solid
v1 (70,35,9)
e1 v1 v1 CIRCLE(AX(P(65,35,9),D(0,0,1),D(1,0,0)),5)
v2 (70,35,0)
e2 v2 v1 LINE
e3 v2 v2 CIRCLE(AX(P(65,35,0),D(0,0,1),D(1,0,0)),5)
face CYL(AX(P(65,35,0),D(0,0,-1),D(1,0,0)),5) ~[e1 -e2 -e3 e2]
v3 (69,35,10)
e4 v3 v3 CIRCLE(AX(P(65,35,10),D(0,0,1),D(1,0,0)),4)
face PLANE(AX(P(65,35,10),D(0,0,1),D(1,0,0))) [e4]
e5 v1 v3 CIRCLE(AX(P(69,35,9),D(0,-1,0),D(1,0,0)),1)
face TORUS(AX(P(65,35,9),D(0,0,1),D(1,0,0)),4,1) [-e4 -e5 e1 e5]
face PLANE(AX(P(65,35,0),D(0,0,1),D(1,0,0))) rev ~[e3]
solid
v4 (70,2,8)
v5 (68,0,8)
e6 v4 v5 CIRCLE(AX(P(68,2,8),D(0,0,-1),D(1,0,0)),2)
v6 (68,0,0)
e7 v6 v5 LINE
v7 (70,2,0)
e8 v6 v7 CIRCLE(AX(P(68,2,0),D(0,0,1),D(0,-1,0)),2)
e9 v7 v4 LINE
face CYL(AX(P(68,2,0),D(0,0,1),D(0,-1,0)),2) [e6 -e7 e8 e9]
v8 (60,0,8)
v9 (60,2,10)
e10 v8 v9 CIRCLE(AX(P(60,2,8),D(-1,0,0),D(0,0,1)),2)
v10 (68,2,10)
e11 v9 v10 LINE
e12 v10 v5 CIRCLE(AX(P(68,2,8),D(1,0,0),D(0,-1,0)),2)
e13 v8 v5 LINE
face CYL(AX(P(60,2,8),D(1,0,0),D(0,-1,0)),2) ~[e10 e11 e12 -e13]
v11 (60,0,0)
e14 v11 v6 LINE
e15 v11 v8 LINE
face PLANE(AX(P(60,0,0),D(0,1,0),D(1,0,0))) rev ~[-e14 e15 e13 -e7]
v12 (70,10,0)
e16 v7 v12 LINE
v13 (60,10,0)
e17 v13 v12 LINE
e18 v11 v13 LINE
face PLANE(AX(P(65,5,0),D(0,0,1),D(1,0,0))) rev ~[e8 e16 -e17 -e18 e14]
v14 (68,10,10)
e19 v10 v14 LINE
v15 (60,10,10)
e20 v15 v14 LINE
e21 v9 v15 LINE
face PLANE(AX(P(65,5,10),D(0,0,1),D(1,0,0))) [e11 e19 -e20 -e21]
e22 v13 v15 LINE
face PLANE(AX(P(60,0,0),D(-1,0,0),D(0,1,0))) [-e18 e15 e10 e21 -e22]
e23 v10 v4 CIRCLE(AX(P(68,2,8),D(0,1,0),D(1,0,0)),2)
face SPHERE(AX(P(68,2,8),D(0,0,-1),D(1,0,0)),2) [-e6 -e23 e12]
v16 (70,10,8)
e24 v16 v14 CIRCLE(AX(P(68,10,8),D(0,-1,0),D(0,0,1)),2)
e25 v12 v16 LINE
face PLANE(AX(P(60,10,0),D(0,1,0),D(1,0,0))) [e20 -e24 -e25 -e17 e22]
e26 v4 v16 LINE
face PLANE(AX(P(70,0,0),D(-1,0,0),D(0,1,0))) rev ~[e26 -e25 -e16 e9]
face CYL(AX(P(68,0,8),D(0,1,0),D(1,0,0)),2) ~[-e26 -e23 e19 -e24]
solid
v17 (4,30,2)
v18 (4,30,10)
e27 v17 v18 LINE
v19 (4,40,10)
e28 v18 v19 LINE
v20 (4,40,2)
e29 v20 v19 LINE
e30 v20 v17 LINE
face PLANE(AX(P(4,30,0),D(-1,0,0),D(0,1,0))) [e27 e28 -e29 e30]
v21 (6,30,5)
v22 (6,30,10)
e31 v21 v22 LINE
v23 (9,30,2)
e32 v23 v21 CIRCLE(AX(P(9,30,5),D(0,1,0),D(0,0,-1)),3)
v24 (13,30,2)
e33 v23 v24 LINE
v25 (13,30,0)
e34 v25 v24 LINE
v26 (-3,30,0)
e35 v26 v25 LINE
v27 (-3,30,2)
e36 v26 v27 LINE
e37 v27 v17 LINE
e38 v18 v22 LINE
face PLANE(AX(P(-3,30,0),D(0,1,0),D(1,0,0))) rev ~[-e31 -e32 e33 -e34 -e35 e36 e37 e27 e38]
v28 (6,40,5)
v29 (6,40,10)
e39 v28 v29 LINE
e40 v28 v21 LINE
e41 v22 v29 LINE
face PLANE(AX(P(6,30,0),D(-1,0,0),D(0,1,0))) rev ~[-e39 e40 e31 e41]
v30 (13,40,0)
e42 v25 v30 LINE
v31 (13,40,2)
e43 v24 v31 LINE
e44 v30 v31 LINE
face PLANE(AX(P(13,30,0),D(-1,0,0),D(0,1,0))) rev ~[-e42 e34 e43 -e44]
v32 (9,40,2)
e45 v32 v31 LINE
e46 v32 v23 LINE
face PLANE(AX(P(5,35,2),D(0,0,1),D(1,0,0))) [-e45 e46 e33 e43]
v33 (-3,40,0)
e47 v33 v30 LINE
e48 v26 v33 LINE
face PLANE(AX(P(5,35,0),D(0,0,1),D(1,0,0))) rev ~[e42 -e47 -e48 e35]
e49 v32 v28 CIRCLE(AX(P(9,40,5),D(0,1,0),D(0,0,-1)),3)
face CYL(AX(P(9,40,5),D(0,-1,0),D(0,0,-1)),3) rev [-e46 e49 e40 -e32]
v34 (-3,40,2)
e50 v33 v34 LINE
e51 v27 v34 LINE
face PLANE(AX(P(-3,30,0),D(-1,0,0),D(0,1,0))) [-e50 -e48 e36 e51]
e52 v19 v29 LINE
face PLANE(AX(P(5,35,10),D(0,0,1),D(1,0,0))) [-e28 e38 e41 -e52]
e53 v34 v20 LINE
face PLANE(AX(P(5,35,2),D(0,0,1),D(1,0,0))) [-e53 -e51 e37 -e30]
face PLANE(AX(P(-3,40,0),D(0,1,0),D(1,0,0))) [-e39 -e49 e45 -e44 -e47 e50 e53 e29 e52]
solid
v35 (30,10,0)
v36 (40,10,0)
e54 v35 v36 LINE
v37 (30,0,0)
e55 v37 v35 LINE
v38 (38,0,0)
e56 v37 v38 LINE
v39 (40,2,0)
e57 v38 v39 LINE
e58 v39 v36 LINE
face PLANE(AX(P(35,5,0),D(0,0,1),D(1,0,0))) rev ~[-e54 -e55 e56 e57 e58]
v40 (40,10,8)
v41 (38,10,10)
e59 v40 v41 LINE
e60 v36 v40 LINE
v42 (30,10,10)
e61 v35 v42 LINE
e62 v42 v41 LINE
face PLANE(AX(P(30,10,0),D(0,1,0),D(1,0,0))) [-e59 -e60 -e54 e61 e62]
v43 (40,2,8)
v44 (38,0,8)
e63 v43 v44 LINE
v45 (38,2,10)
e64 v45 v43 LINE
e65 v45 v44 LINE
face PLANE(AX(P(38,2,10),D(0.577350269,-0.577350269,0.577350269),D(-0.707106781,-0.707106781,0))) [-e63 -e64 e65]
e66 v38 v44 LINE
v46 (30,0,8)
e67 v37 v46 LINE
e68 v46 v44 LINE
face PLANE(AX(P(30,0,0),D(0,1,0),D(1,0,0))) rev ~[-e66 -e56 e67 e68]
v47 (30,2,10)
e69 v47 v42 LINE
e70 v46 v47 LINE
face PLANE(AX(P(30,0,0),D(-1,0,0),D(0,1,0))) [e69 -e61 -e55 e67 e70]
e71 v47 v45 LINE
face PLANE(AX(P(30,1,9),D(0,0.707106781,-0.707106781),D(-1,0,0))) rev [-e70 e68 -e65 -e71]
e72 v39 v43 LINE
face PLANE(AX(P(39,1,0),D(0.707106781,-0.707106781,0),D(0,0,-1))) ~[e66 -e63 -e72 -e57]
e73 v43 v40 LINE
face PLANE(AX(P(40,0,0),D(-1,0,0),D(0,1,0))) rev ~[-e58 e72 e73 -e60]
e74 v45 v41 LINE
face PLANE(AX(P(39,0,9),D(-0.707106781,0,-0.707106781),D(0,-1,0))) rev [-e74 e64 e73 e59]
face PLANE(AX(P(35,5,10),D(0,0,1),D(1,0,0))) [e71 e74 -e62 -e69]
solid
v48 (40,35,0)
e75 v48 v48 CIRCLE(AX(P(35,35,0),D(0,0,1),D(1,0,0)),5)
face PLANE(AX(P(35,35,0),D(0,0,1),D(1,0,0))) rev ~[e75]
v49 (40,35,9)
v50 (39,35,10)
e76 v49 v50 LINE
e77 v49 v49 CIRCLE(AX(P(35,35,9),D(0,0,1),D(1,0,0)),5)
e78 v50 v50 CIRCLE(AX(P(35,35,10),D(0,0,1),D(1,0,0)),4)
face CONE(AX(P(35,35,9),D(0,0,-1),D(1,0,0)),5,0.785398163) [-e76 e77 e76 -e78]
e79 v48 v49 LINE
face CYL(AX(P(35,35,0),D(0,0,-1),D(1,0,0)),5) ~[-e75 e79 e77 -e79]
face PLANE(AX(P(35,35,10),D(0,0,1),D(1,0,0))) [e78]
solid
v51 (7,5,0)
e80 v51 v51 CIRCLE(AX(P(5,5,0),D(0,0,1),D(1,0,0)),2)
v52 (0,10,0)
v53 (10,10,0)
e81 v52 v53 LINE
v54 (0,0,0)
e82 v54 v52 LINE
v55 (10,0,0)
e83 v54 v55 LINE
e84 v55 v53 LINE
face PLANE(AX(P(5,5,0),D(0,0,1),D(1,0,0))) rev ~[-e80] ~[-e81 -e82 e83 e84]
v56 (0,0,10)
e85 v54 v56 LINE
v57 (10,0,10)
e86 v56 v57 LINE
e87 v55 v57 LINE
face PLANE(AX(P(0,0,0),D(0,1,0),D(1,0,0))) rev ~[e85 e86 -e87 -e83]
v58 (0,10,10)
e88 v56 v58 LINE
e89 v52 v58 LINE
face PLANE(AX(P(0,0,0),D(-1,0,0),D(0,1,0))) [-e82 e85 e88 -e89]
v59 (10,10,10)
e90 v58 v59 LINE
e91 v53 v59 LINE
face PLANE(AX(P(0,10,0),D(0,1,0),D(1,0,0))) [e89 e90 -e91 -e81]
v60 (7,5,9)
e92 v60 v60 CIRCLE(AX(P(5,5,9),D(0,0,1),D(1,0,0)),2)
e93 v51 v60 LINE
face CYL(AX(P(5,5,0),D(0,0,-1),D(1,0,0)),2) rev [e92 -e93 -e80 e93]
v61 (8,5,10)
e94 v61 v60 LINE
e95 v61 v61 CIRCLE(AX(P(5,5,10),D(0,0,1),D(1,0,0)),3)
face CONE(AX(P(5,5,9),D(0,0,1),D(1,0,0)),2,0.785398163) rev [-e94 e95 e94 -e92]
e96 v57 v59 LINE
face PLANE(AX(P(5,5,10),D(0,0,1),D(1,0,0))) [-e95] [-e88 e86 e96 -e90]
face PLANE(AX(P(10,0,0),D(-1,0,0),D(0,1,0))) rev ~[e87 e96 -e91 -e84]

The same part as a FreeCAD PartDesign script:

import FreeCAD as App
import Part
import Sketcher

V = App.Vector
Q = App.Units.Quantity


def edges_at(feature, points):
    """Names of the edges that pass closest to the given points."""
    edges = feature.Shape.Edges
    near = lambda p: min(range(len(edges)), key=lambda i: edges[i].distToShape(Part.Vertex(*p))[0])
    return sorted({f"Edge{near(p) + 1}" for p in points})


def add_polygon(sketch, points):
    """Adds a closed chain of lines whose ends are joined by coincident constraints."""
    first, n = sketch.GeometryCount, len(points)
    for a, b in zip(points, points[1:] + points[:1]):
        sketch.addGeometry(Part.LineSegment(App.Vector(*a, 0), App.Vector(*b, 0)), False)
    for i in range(n):
        sketch.addConstraint(Sketcher.Constraint("Coincident", first + i, 2, first + (i + 1) % n, 1))

doc = App.newDocument("Part")
body = doc.addObject("PartDesign::Body", "Body")

# Sketch on XY plane
sketch1 = body.newObject("Sketcher::SketchObject", "Sketch")
sketch1.AttachmentSupport = (doc.getObject("XY_Plane"), [""])
sketch1.MapMode = "FlatFace"
add_polygon(sketch1, [(60, 10), (60, 0), (70, 0), (70, 10)])  # lines 0-3
sketch1.addConstraint(Sketcher.Constraint("Vertical", 0))
sketch1.addConstraint(Sketcher.Constraint("Horizontal", 1))
sketch1.addConstraint(Sketcher.Constraint("Vertical", 2))
sketch1.addConstraint(Sketcher.Constraint("Horizontal", 3))
sketch1.addConstraint(Sketcher.Constraint("PointOnObject", 0, 2, -1))
sketch1.addConstraint(Sketcher.Constraint("Equal", 3, 0))
sketch1.addConstraint(Sketcher.Constraint("DistanceX", 1, 1, 1, 2, Q("10 mm")))
sketch1.addConstraint(Sketcher.Constraint("DistanceX", -1, 1, 0, 2, Q("60 mm")))
pad1 = body.newObject("PartDesign::Pad", "Pad")
pad1.Profile = sketch1
pad1.Length = 10
doc.recompute()

fillet = body.newObject("PartDesign::Fillet", "Fillet")
fillet.Base = (pad1, edges_at(pad1, [(70, 0, 5), (70, 5, 10), (65, 0, 10)]))
fillet.Radius = 2
body2 = doc.addObject("PartDesign::Body", "Body001")

# Sketch on XY plane
sketch2 = body2.newObject("Sketcher::SketchObject", "Sketch001")
sketch2.AttachmentSupport = (doc.getObject("XY_Plane001"), [""])
sketch2.MapMode = "FlatFace"
add_polygon(sketch2, [(30, 10), (30, 0), (40, 0), (40, 10)])  # lines 0-3
sketch2.addConstraint(Sketcher.Constraint("Vertical", 0))
sketch2.addConstraint(Sketcher.Constraint("Horizontal", 1))
sketch2.addConstraint(Sketcher.Constraint("Vertical", 2))
sketch2.addConstraint(Sketcher.Constraint("Horizontal", 3))
sketch2.addConstraint(Sketcher.Constraint("PointOnObject", 0, 2, -1))
sketch2.addConstraint(Sketcher.Constraint("Equal", 3, 0))
sketch2.addConstraint(Sketcher.Constraint("DistanceX", 1, 1, 1, 2, Q("10 mm")))
sketch2.addConstraint(Sketcher.Constraint("DistanceX", -1, 1, 0, 2, Q("30 mm")))
pad2 = body2.newObject("PartDesign::Pad", "Pad001")
pad2.Profile = sketch2
pad2.Length = 10
doc.recompute()

chamfer = body2.newObject("PartDesign::Chamfer", "Chamfer")
chamfer.Base = (pad2, edges_at(pad2, [(40, 0, 5), (40, 5, 10), (35, 0, 10)]))
chamfer.Size = 2
body3 = doc.addObject("PartDesign::Body", "Body002")

# Sketch on XY plane
sketch3 = body3.newObject("Sketcher::SketchObject", "Sketch002")
sketch3.AttachmentSupport = (doc.getObject("XY_Plane002"), [""])
sketch3.MapMode = "FlatFace"
sketch3.addGeometry(Part.Circle(V(5, 5, 0), V(0, 0, 1), 2), False)
sketch3.addConstraint(Sketcher.Constraint("Diameter", 0, Q("4 mm")))
sketch3.addConstraint(Sketcher.Constraint("DistanceX", -1, 1, 0, 3, Q("5 mm")))
sketch3.addConstraint(Sketcher.Constraint("DistanceY", -1, 1, 0, 3, Q("5 mm")))
pad3 = body3.newObject("PartDesign::Pad", "Pad002")
pad3.Profile = sketch3
pad3.Length = 10
body4 = doc.addObject("PartDesign::Body", "Body003")

# Sketch on XY plane
sketch4 = body4.newObject("Sketcher::SketchObject", "Sketch003")
sketch4.AttachmentSupport = (doc.getObject("XY_Plane003"), [""])
sketch4.MapMode = "FlatFace"
add_polygon(sketch4, [(0, 10), (0, 0), (10, 0), (10, 10)])  # lines 0-3
sketch4.addConstraint(Sketcher.Constraint("Vertical", 0))
sketch4.addConstraint(Sketcher.Constraint("Horizontal", 1))
sketch4.addConstraint(Sketcher.Constraint("Vertical", 2))
sketch4.addConstraint(Sketcher.Constraint("Horizontal", 3))
sketch4.addConstraint(Sketcher.Constraint("Coincident", 0, 2, -1, 1))
sketch4.addConstraint(Sketcher.Constraint("Equal", 3, 0))
sketch4.addConstraint(Sketcher.Constraint("DistanceX", 1, 1, 1, 2, Q("10 mm")))
pad4 = body4.newObject("PartDesign::Pad", "Pad003")
pad4.Profile = sketch4
pad4.Length = 10
doc.recompute()

boolean = body4.newObject("PartDesign::Boolean", "Boolean")
boolean.Type = "Cut"
boolean.addObjects([body3])
doc.recompute()

chamfer2 = body4.newObject("PartDesign::Chamfer", "Chamfer001")
chamfer2.Base = (boolean, edges_at(boolean, [(3, 5, 10)]))
chamfer2.Size = 1
body5 = doc.addObject("PartDesign::Body", "Body004")

# Sketch on XY plane
sketch5 = body5.newObject("Sketcher::SketchObject", "Sketch004")
sketch5.AttachmentSupport = (doc.getObject("XY_Plane004"), [""])
sketch5.MapMode = "FlatFace"
sketch5.addGeometry(Part.Circle(V(65, 35, 0), V(0, 0, 1), 5), False)
sketch5.addConstraint(Sketcher.Constraint("Diameter", 0, Q("10 mm")))
sketch5.addConstraint(Sketcher.Constraint("DistanceX", -1, 1, 0, 3, Q("65 mm")))
sketch5.addConstraint(Sketcher.Constraint("DistanceY", -1, 1, 0, 3, Q("35 mm")))
pad5 = body5.newObject("PartDesign::Pad", "Pad004")
pad5.Profile = sketch5
pad5.Length = 10
doc.recompute()

fillet2 = body5.newObject("PartDesign::Fillet", "Fillet001")
fillet2.Base = (pad5, edges_at(pad5, [(60, 35, 10)]))
fillet2.Radius = 1
body6 = doc.addObject("PartDesign::Body", "Body005")

# Sketch on XY plane
sketch6 = body6.newObject("Sketcher::SketchObject", "Sketch005")
sketch6.AttachmentSupport = (doc.getObject("XY_Plane005"), [""])
sketch6.MapMode = "FlatFace"
sketch6.addGeometry(Part.Circle(V(35, 35, 0), V(0, 0, 1), 5), False)
sketch6.addConstraint(Sketcher.Constraint("Diameter", 0, Q("10 mm")))
sketch6.addConstraint(Sketcher.Constraint("DistanceX", -1, 1, 0, 3, Q("35 mm")))
sketch6.addConstraint(Sketcher.Constraint("DistanceY", -1, 1, 0, 3, Q("35 mm")))
pad6 = body6.newObject("PartDesign::Pad", "Pad005")
pad6.Profile = sketch6
pad6.Length = 10
doc.recompute()

chamfer3 = body6.newObject("PartDesign::Chamfer", "Chamfer002")
chamfer3.Base = (pad6, edges_at(pad6, [(30, 35, 10)]))
chamfer3.Size = 1
body7 = doc.addObject("PartDesign::Body", "Body006")

# Sketch on XY plane
sketch7 = body7.newObject("Sketcher::SketchObject", "Sketch006")
sketch7.AttachmentSupport = (doc.getObject("XY_Plane006"), [""])
sketch7.MapMode = "FlatFace"
add_polygon(sketch7, [(4, 40), (4, 30), (6, 30), (6, 40)])  # lines 0-3
sketch7.addConstraint(Sketcher.Constraint("Vertical", 0))
sketch7.addConstraint(Sketcher.Constraint("Horizontal", 1))
sketch7.addConstraint(Sketcher.Constraint("Vertical", 2))
sketch7.addConstraint(Sketcher.Constraint("Horizontal", 3))
sketch7.addConstraint(Sketcher.Constraint("DistanceX", 1, 1, 1, 2, Q("2 mm")))
sketch7.addConstraint(Sketcher.Constraint("DistanceY", 0, 2, 0, 1, Q("10 mm")))
sketch7.addConstraint(Sketcher.Constraint("DistanceX", -1, 1, 0, 2, Q("4 mm")))
sketch7.addConstraint(Sketcher.Constraint("DistanceY", -1, 1, 0, 2, Q("30 mm")))
pad7 = body7.newObject("PartDesign::Pad", "Pad006")
pad7.Profile = sketch7
pad7.Length = 10
body8 = doc.addObject("PartDesign::Body", "Body007")

# Sketch on XY plane
sketch8 = body8.newObject("Sketcher::SketchObject", "Sketch007")
sketch8.AttachmentSupport = (doc.getObject("XY_Plane007"), [""])
sketch8.MapMode = "FlatFace"
add_polygon(sketch8, [(-3, 40), (-3, 30), (13, 30), (13, 40)])  # lines 0-3
sketch8.addConstraint(Sketcher.Constraint("Vertical", 0))
sketch8.addConstraint(Sketcher.Constraint("Horizontal", 1))
sketch8.addConstraint(Sketcher.Constraint("Vertical", 2))
sketch8.addConstraint(Sketcher.Constraint("Horizontal", 3))
sketch8.addConstraint(Sketcher.Constraint("DistanceX", 1, 1, 1, 2, Q("16 mm")))
sketch8.addConstraint(Sketcher.Constraint("DistanceY", 0, 2, 0, 1, Q("10 mm")))
sketch8.addConstraint(Sketcher.Constraint("DistanceX", 0, 2, -1, 1, Q("3 mm")))
sketch8.addConstraint(Sketcher.Constraint("DistanceY", -1, 1, 0, 2, Q("30 mm")))
pad8 = body8.newObject("PartDesign::Pad", "Pad007")
pad8.Profile = sketch8
pad8.Length = 2
doc.recompute()

boolean2 = body8.newObject("PartDesign::Boolean", "Boolean001")
boolean2.Type = "Fuse"
boolean2.addObjects([body7])
doc.recompute()

fillet3 = body8.newObject("PartDesign::Fillet", "Fillet002")
fillet3.Base = (boolean2, edges_at(boolean2, [(6, 35, 2)]))
fillet3.Radius = 3

doc.recompute()
